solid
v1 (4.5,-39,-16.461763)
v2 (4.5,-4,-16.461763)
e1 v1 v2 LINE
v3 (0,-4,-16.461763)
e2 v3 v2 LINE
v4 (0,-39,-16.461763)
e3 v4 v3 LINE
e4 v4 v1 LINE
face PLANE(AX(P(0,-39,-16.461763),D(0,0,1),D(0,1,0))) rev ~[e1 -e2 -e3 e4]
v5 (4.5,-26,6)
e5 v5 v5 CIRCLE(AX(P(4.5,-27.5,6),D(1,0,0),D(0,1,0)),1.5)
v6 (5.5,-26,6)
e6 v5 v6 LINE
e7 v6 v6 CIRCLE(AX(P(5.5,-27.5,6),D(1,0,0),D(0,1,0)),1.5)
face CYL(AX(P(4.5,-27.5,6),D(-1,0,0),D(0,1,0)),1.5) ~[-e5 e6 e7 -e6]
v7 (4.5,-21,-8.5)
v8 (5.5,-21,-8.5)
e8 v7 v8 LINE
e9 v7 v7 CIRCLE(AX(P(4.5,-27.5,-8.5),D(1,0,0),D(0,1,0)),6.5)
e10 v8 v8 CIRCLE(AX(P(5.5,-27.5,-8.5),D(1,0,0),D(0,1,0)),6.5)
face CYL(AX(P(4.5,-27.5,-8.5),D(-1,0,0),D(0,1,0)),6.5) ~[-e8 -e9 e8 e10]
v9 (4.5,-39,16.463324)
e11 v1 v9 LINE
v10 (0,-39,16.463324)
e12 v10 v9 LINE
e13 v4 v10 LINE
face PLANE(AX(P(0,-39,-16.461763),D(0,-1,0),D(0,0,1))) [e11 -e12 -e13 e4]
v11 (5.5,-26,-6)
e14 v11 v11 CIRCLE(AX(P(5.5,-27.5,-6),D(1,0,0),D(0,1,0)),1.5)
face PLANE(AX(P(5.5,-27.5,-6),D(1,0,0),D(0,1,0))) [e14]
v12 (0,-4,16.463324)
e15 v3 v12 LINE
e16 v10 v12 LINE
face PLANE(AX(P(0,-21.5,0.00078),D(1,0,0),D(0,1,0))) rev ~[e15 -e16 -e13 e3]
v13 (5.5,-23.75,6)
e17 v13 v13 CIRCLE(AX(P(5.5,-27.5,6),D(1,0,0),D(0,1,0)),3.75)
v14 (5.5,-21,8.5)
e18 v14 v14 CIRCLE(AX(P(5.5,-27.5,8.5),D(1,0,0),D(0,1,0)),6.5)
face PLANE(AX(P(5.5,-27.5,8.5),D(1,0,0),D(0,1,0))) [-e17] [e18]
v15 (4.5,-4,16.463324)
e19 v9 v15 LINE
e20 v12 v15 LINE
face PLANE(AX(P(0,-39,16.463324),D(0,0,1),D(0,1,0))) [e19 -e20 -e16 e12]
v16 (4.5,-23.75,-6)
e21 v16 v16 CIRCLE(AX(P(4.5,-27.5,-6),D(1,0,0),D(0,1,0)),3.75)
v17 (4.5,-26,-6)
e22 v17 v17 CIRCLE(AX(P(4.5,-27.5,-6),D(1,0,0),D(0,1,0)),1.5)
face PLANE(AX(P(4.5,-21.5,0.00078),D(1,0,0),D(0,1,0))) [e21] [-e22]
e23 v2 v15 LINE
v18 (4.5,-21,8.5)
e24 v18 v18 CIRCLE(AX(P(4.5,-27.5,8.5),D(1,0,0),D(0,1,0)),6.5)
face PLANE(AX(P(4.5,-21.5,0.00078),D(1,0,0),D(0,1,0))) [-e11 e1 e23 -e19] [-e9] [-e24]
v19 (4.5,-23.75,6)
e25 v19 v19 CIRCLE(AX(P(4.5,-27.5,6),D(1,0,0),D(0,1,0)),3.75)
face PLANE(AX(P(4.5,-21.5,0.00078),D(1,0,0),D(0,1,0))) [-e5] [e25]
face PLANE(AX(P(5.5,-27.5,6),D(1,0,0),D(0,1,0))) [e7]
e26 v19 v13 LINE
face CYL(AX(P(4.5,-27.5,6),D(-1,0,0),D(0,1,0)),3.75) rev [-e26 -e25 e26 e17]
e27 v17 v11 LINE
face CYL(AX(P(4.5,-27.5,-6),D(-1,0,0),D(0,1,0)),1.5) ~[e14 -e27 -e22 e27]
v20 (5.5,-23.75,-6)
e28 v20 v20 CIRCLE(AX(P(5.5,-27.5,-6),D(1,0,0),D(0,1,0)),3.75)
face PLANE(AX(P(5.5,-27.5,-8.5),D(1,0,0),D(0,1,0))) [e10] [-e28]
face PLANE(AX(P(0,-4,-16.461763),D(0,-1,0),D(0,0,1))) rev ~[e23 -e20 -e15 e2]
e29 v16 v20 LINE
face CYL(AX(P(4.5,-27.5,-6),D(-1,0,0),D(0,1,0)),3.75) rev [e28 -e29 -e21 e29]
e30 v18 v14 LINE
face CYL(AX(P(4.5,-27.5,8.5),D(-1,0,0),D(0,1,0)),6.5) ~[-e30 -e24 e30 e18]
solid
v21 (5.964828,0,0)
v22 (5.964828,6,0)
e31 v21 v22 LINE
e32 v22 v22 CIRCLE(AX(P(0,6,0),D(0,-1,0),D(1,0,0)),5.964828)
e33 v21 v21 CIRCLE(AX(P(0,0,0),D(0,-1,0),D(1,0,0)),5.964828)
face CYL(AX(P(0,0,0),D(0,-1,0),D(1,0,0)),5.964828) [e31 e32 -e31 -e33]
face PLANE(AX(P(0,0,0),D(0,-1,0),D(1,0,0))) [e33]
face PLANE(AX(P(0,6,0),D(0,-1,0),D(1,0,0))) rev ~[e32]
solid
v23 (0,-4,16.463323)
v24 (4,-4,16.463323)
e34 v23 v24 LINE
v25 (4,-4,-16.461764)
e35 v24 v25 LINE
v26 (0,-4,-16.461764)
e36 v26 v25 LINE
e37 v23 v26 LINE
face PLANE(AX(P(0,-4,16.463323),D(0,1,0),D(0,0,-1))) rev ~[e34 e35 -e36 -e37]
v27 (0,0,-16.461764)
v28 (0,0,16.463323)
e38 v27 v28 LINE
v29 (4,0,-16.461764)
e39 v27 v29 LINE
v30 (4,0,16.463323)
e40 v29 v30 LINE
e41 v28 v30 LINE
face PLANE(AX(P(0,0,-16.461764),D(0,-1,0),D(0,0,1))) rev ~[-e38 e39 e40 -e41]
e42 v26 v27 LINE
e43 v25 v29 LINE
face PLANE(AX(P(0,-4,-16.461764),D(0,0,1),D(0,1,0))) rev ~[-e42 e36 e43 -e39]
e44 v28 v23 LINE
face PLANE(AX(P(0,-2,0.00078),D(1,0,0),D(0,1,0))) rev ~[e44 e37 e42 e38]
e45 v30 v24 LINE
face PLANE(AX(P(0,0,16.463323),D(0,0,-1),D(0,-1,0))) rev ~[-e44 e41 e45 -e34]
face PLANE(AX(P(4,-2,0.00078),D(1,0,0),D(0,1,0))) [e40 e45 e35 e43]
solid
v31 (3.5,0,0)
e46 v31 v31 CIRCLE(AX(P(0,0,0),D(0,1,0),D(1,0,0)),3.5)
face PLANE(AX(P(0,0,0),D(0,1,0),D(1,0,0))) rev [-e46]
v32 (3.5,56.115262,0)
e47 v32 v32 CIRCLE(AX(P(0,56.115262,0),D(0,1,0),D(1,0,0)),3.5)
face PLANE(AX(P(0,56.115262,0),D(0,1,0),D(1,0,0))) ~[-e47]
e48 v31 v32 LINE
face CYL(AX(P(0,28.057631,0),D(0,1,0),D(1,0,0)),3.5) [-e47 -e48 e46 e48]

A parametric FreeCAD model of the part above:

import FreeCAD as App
import Part
import Sketcher

V = App.Vector
Q = App.Units.Quantity


def add_polygon(sketch, points):
    """Adds a closed chain of lines whose ends are joined by coincident constraints."""
    first, n = sketch.GeometryCount, len(points)
    for a, b in zip(points, points[1:] + points[:1]):
        sketch.addGeometry(Part.LineSegment(App.Vector(*a, 0), App.Vector(*b, 0)), False)
    for i in range(n):
        sketch.addConstraint(Sketcher.Constraint("Coincident", first + i, 2, first + (i + 1) % n, 1))

doc = App.newDocument("Part")
body = doc.addObject("PartDesign::Body", "Body")

# Sketch on XY plane
sketch1 = doc.addObject("Sketcher::SketchObject", "Sketch")
body.addObject(sketch1)
sketch1.AttachmentSupport = (doc.XY_Plane, [""])
sketch1.MapMode = "FlatFace"
add_polygon(sketch1, [(0, 56.1), (0, 0), (3.5, 0), (3.5, 56.1)])  # lines 0-3
sketch1.addConstraint([
    Sketcher.Constraint("Vertical", 0),
    Sketcher.Constraint("Horizontal", 1),
    Sketcher.Constraint("Vertical", 2),
    Sketcher.Constraint("Horizontal", 3),
    Sketcher.Constraint("Coincident", 0, 2, -1, 1),
    Sketcher.Constraint("DistanceX", 1, 1, 1, 2, Q("3.5 mm")),
    Sketcher.Constraint("DistanceY", 0, 2, 0, 1, Q("56.115262 mm")),
])
revolution = doc.addObject("PartDesign::Revolution", "Revolution")
body.addObject(revolution)
revolution.Profile = sketch1
revolution.ReferenceAxis = (sketch1, ["V_Axis"])
revolution.Angle = 360
body2 = doc.addObject("PartDesign::Body", "Body001")

# Sketch on XZ plane
sketch2 = doc.addObject("Sketcher::SketchObject", "Sketch001")
body2.addObject(sketch2)
sketch2.AttachmentSupport = (doc.getObject("XZ_Plane001"), [""])
sketch2.MapMode = "FlatFace"
sketch2.addGeometry(Part.Circle(V(0, 0, 0), V(0, 0, 1), 6), False)
sketch2.addConstraint([
    Sketcher.Constraint("Coincident", 0, 3, -1, 1),
    Sketcher.Constraint("Diameter", 0, Q("11.929656 mm")),
])
pad1 = doc.addObject("PartDesign::Pad", "Pad")
body2.addObject(pad1)
pad1.Profile = sketch2
pad1.Length = 6
pad1.Reversed = True
body3 = doc.addObject("PartDesign::Body", "Body002")

# Sketch on YZ plane
sketch3 = doc.addObject("Sketcher::SketchObject", "Sketch002")
body3.addObject(sketch3)
sketch3.AttachmentSupport = (doc.getObject("YZ_Plane002"), [""])
sketch3.MapMode = "FlatFace"
add_polygon(sketch3, [(-4, -16.5), (0, -16.5), (0, 16.5), (-4, 16.5)])  # lines 0-3
sketch3.addConstraint([
    Sketcher.Constraint("Horizontal", 0),
    Sketcher.Constraint("Vertical", 1),
    Sketcher.Constraint("Horizontal", 2),
    Sketcher.Constraint("Vertical", 3),
    Sketcher.Constraint("PointOnObject", 0, 2, -2),
    Sketcher.Constraint("DistanceX", 0, 1, 0, 2, Q("4 mm")),
    Sketcher.Constraint("DistanceY", 1, 1, 1, 2, Q("32.925087 mm")),
    Sketcher.Constraint("DistanceY", 0, 2, -1, 1, Q("16.461764 mm")),
])
pad2 = doc.addObject("PartDesign::Pad", "Pad001")
body3.addObject(pad2)
pad2.Profile = sketch3
pad2.Length = 4
body4 = doc.addObject("PartDesign::Body", "Body003")

# Sketch on YZ plane
sketch4 = doc.addObject("Sketcher::SketchObject", "Sketch003")
body4.addObject(sketch4)
sketch4.AttachmentSupport = (doc.getObject("YZ_Plane003"), [""])
sketch4.MapMode = "FlatFace"
add_polygon(sketch4, [(-39, 16), (-39, -16), (-4, -16), (-4, 16)])  # lines 0-3
sketch4.addConstraint([
    Sketcher.Constraint("Vertical", 0),
    Sketcher.Constraint("Horizontal", 1),
    Sketcher.Constraint("Vertical", 2),
    Sketcher.Constraint("Horizontal", 3),
    Sketcher.Constraint("DistanceX", 1, 1, 1, 2, Q("35 mm")),
    Sketcher.Constraint("DistanceX", 0, 2, -1, 1, Q("39 mm")),
    Sketcher.Constraint("DistanceY", 0, 2, 0, 1, Q("32.925087 mm")),
    Sketcher.Constraint("DistanceY", 0, 2, -1, 1, Q("16.461763 mm")),
])
pad3 = doc.addObject("PartDesign::Pad", "Pad002")
body4.addObject(pad3)
pad3.Profile = sketch4
pad3.Length = 4.5

# Sketch on YZ plane
sketch5 = doc.addObject("Sketcher::SketchObject", "Sketch004")
body4.addObject(sketch5)
sketch5.AttachmentSupport = (doc.getObject("YZ_Plane003"), [""])
sketch5.MapMode = "FlatFace"
sketch5.AttachmentOffset = App.Placement(V(0, 0, 4.5), App.Rotation())
sketch5.addGeometry([
    Part.Circle(V(-27.5, -8.5, 0), V(0, 0, 1), 6.5),
    Part.Circle(V(-27.5, -6, 0), V(0, 0, 1), 3.8),
    Part.Circle(V(-27.5, 8.5, 0), V(0, 0, 1), 6.5),
    Part.Circle(V(-27.5, 6, 0), V(0, 0, 1), 3.8),
], False)
sketch5.addConstraint([
    Sketcher.Constraint("Equal", 0, 2),
    Sketcher.Constraint("Equal", 1, 3),
    Sketcher.Constraint("Symmetric", 0, 3, 2, 3, -1),
    Sketcher.Constraint("Symmetric", 1, 3, 3, 3, -1),
    Sketcher.Constraint("Vertical", 0, 3, 1, 3),
    Sketcher.Constraint("Diameter", 0, Q("13 mm")),
    Sketcher.Constraint("Diameter", 1, Q("7.5 mm")),
    Sketcher.Constraint("DistanceY", 1, 3, -1, 1, Q("6 mm")),
    Sketcher.Constraint("DistanceY", 0, 3, 2, 3, Q("17 mm")),
    Sketcher.Constraint("DistanceX", 0, 3, -1, 1, Q("27.5 mm")),
])
pad4 = doc.addObject("PartDesign::Pad", "Pad003")
body4.addObject(pad4)
pad4.Profile = sketch5
pad4.Length = 1

# Sketch on YZ plane
sketch6 = doc.addObject("Sketcher::SketchObject", "Sketch005")
body4.addObject(sketch6)
sketch6.AttachmentSupport = (doc.getObject("YZ_Plane003"), [""])
sketch6.MapMode = "FlatFace"
sketch6.AttachmentOffset = App.Placement(V(0, 0, 4.5), App.Rotation())
sketch6.addGeometry([
    Part.Circle(V(-27.5, -6, 0), V(0, 0, 1), 1.5),
    Part.Circle(V(-27.5, 6, 0), V(0, 0, 1), 1.5),
], False)
sketch6.addConstraint([
    Sketcher.Constraint("Equal", 0, 1),
    Sketcher.Constraint("Symmetric", 0, 3, 1, 3, -1),
    Sketcher.Constraint("Diameter", 0, Q("3 mm")),
    Sketcher.Constraint("DistanceY", 0, 3, -1, 1, Q("6 mm")),
    Sketcher.Constraint("DistanceX", 0, 3, -1, 1, Q("27.5 mm")),
])
pad5 = doc.addObject("PartDesign::Pad", "Pad004")
body4.addObject(pad5)
pad5.Profile = sketch6
pad5.Length = 1

doc.recompute()
